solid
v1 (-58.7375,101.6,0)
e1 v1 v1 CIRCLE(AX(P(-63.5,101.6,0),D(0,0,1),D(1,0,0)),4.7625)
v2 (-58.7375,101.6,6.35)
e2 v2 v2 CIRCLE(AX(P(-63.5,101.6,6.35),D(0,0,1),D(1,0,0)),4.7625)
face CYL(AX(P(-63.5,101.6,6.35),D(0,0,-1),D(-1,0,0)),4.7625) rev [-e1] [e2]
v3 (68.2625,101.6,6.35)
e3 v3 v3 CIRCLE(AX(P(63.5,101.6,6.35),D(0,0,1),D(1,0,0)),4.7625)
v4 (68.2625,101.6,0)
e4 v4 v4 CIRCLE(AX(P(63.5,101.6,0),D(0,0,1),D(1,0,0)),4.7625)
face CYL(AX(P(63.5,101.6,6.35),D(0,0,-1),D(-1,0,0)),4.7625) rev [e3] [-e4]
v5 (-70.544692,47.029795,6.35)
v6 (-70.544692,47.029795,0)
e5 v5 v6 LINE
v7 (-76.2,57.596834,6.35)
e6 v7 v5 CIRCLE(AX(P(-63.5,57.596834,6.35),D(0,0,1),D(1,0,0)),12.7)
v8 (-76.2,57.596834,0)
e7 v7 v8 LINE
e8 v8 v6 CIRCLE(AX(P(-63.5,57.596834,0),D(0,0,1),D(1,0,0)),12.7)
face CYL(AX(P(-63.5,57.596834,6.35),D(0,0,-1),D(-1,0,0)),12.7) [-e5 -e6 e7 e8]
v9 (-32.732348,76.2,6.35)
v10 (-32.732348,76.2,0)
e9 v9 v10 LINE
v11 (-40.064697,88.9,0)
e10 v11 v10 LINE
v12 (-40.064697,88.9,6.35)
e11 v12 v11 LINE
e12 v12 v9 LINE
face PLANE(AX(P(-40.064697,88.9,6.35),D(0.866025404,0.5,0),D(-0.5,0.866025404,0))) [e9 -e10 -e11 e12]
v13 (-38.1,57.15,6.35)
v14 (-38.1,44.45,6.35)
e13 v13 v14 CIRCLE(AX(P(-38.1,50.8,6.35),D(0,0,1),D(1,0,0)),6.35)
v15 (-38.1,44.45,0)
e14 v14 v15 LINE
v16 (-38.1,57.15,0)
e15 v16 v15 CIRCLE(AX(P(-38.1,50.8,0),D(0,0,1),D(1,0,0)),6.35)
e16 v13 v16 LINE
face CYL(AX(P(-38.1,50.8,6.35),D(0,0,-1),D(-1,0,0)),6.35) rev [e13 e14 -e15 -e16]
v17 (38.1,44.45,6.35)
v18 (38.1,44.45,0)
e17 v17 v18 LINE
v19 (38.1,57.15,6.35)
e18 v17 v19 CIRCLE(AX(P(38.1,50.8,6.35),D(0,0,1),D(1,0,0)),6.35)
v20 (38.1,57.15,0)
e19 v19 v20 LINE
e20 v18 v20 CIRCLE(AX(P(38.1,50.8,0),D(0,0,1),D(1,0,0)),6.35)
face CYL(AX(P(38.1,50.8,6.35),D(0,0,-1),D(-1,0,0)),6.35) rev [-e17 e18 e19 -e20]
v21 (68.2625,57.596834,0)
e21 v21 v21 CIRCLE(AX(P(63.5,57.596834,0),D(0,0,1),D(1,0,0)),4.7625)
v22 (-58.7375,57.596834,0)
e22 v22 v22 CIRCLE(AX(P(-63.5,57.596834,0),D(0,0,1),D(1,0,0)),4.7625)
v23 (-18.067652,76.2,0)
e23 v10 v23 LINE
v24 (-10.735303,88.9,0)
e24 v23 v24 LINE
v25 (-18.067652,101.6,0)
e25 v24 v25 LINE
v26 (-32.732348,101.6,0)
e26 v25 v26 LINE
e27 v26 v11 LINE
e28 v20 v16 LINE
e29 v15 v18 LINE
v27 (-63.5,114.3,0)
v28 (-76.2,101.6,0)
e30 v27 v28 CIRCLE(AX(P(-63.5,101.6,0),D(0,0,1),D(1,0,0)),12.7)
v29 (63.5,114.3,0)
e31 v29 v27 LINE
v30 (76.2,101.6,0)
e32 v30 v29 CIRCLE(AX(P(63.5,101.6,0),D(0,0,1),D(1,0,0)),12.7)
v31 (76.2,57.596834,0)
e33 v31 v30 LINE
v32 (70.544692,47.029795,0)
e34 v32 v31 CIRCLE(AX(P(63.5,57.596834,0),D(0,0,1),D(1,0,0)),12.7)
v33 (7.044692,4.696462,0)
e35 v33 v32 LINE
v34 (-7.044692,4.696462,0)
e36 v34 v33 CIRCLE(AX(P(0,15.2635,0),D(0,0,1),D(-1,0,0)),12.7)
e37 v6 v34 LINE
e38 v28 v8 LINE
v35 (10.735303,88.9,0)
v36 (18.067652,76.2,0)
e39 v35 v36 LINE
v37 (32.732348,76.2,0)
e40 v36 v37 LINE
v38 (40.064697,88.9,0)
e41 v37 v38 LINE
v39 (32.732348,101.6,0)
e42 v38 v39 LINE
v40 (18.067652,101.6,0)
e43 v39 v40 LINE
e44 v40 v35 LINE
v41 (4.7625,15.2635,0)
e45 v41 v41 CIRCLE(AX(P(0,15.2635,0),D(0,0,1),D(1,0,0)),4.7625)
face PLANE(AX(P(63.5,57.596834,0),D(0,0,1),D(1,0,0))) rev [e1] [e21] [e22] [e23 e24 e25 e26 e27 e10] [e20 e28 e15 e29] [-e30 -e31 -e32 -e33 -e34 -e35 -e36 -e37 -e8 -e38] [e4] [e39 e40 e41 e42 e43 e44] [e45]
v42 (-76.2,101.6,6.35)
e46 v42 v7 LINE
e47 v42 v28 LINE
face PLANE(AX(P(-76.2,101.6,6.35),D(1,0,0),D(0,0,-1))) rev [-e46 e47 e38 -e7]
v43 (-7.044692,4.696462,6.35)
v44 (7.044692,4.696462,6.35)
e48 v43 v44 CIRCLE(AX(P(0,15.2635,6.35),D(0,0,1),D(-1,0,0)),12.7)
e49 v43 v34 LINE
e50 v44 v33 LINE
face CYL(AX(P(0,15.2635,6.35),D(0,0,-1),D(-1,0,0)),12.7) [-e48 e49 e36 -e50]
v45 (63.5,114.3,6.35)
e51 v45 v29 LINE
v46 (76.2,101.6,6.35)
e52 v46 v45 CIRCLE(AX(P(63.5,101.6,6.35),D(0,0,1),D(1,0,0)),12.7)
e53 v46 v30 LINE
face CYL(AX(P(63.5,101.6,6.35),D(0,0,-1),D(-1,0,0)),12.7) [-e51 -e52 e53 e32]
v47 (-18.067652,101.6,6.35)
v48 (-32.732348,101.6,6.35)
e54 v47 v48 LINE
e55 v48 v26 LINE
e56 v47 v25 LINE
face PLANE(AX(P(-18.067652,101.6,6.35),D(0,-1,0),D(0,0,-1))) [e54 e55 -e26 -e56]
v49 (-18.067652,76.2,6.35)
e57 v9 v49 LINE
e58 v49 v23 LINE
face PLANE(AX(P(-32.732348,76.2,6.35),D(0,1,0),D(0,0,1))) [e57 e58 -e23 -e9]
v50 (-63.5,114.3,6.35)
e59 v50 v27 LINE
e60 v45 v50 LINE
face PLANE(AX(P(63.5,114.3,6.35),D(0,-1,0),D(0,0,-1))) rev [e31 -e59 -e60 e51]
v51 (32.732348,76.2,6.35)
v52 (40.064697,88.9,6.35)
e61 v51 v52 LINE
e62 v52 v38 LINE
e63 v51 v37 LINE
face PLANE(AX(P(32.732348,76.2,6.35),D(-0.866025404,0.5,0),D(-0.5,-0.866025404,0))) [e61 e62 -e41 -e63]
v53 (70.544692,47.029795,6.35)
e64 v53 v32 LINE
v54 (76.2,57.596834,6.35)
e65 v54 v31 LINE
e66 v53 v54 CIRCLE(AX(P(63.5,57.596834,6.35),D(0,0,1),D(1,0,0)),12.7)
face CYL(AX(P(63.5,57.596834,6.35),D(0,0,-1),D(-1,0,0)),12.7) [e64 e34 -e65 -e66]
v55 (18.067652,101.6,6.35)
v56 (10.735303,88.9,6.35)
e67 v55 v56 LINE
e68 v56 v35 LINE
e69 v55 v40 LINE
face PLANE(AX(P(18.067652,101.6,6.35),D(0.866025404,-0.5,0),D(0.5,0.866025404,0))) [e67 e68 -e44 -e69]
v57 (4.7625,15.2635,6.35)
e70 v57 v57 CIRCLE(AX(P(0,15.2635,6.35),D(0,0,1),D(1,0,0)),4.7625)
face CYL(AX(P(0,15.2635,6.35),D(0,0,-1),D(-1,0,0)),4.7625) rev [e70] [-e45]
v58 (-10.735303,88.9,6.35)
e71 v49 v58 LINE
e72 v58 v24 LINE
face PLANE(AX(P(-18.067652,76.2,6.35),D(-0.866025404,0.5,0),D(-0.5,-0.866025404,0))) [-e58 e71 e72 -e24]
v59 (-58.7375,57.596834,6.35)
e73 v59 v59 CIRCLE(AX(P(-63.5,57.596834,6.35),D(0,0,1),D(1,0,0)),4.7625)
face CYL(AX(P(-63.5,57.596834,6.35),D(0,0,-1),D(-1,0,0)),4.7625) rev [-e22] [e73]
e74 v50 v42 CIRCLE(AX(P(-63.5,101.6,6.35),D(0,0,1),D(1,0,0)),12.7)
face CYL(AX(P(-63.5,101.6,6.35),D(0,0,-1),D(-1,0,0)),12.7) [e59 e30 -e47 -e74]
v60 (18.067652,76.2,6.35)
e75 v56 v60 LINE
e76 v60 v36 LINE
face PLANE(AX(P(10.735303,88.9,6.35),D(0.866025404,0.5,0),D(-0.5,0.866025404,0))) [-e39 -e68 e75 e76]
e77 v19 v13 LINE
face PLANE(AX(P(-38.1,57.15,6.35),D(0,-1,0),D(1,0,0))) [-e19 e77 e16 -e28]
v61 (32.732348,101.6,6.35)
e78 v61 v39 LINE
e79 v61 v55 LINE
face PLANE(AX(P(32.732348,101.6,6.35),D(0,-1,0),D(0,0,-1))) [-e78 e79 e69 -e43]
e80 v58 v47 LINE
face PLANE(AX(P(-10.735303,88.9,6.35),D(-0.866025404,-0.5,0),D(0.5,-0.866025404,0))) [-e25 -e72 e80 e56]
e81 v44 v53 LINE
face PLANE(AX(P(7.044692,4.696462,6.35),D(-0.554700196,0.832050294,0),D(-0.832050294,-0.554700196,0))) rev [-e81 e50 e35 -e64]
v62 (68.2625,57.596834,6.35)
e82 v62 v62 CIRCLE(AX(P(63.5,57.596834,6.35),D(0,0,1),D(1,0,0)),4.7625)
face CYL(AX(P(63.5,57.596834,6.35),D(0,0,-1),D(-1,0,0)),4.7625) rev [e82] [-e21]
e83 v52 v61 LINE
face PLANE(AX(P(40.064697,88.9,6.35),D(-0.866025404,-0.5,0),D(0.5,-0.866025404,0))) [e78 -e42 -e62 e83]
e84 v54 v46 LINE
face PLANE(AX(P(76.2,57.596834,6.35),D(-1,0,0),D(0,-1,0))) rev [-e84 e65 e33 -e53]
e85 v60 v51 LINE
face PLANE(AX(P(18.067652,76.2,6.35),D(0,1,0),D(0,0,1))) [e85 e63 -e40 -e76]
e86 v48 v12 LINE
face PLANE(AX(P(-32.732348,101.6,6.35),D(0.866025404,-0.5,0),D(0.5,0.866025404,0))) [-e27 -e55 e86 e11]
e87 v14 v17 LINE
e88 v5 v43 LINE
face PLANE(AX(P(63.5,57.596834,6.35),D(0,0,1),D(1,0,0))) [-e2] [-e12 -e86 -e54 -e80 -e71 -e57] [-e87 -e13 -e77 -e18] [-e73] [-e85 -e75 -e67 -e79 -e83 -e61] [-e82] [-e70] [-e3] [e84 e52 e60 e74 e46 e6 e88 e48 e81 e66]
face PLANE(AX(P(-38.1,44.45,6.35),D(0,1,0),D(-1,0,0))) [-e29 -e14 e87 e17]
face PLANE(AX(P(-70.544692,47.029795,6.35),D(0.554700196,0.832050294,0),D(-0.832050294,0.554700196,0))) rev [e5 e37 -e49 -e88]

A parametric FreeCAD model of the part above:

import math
import FreeCAD as App
import Part
import Sketcher
from FreeCAD import Vector
Q = App.Units.Quantity


def add_polygon(sketch, points):
    """Adds a closed chain of lines whose ends are joined by coincident constraints."""
    first, n = sketch.GeometryCount, len(points)
    for a, b in zip(points, points[1:] + points[:1]):
        sketch.addGeometry(Part.LineSegment(App.Vector(*a, 0), App.Vector(*b, 0)), False)
    for i in range(n):
        sketch.addConstraint(Sketcher.Constraint("Coincident", first + i, 2, first + (i + 1) % n, 1))

doc = App.newDocument("Part")
params = doc.addObject("Spreadsheet::Sheet", "Params")
for row, (alias, value) in enumerate([
    ("sketch1_radius", "0.5 in"),
    ("sketch1_width", "5 in"),
    ("sketch1_width2", "3 in"),
    ("sketch1_radius2", "0.25 in"),
    ("sketch1_diameter", "0.375 in"),
    ("pad1_length", "0.25 in"),
], start=1):
    params.set(f"A{row}", alias)
    params.set(f"B{row}", "=" + value)
    params.setAlias(f"B{row}", alias)

body = doc.addObject("PartDesign::Body", "Body")

# Sketch on XY plane
sketch1 = body.newObject("Sketcher::SketchObject", "Sketch")
sketch1.AttachmentSupport = (doc.getObject("XY_Plane"), [""])
sketch1.MapMode = "FlatFace"
sketch1.addGeometry(Part.LineSegment(Vector(7.044692, 4.696462, 0), Vector(70.544692, 47.029795, 0)), False)  # 0
sketch1.addGeometry(Part.ArcOfCircle(Part.Circle(Vector(63.5, 57.596834, 0), Vector(0, 0, 1), 12.7), math.radians(-56.309932), math.radians(0)), False)  # 1
sketch1.addGeometry(Part.LineSegment(Vector(76.2, 57.596834, 0), Vector(76.2, 101.6, 0)), False)  # 2
sketch1.addGeometry(Part.ArcOfCircle(Part.Circle(Vector(63.5, 101.6, 0), Vector(0, 0, 1), 12.7), math.radians(0), math.radians(90)), False)  # 3
sketch1.addGeometry(Part.LineSegment(Vector(63.5, 114.3, 0), Vector(-63.5, 114.3, 0)), False)  # 4
sketch1.addGeometry(Part.ArcOfCircle(Part.Circle(Vector(-63.5, 101.6, 0), Vector(0, 0, 1), 12.7), math.radians(90), math.radians(180)), False)  # 5
sketch1.addGeometry(Part.LineSegment(Vector(-76.2, 101.6, 0), Vector(-76.2, 57.596834, 0)), False)  # 6
sketch1.addGeometry(Part.ArcOfCircle(Part.Circle(Vector(-63.5, 57.596834, 0), Vector(0, 0, 1), 12.7), math.radians(-180), math.radians(-123.690068)), False)  # 7
sketch1.addGeometry(Part.LineSegment(Vector(-70.544692, 47.029795, 0), Vector(-7.044692, 4.696462, 0)), False)  # 8
sketch1.addGeometry(Part.ArcOfCircle(Part.Circle(Vector(0, 15.2635, 0), Vector(0, 0, 1), 12.7), math.radians(-123.690068), math.radians(-56.309932)), False)  # 9
sketch1.addGeometry(Part.Circle(Vector(-63.5, 57.596834, 0), Vector(0, 0, 1), 4.7625), False)  # 10
sketch1.addGeometry(Part.Circle(Vector(0, 15.2635, 0), Vector(0, 0, 1), 4.7625), False)  # 11
sketch1.addGeometry(Part.ArcOfCircle(Part.Circle(Vector(-38.1, 50.8, 0), Vector(0, 0, 1), 6.35), math.radians(90), math.radians(270)), False)  # 12
sketch1.addGeometry(Part.LineSegment(Vector(-38.1, 57.15, 0), Vector(38.1, 57.15, 0)), False)  # 13
sketch1.addGeometry(Part.ArcOfCircle(Part.Circle(Vector(38.1, 50.8, 0), Vector(0, 0, 1), 6.35), math.radians(-90), math.radians(90)), False)  # 14
sketch1.addGeometry(Part.LineSegment(Vector(38.1, 44.45, 0), Vector(-38.1, 44.45, 0)), False)  # 15
sketch1.addGeometry(Part.Circle(Vector(63.5, 57.596834, 0), Vector(0, 0, 1), 4.7625), False)  # 16
sketch1.addGeometry(Part.Circle(Vector(-63.5, 101.6, 0), Vector(0, 0, 1), 4.7625), False)  # 17
add_polygon(sketch1, [(-18.067652, 101.6), (-10.735303, 88.9), (-18.067652, 76.2), (-32.732348, 76.2), (-40.064697, 88.9), (-32.732348, 101.6)])  # lines 18-23
add_polygon(sketch1, [(32.732348, 101.6), (40.064697, 88.9), (32.732348, 76.2), (18.067652, 76.2), (10.735303, 88.9), (18.067652, 101.6)])  # lines 24-29
sketch1.addGeometry(Part.Circle(Vector(63.5, 101.6, 0), Vector(0, 0, 1), 4.7625), False)  # 30
sketch1.addConstraint(Sketcher.Constraint("Tangent", 0, 2, 1, 1))
sketch1.addConstraint(Sketcher.Constraint("Tangent", 1, 2, 2, 1))
sketch1.addConstraint(Sketcher.Constraint("Tangent", 2, 2, 3, 1))
sketch1.addConstraint(Sketcher.Constraint("Tangent", 3, 2, 4, 1))
sketch1.addConstraint(Sketcher.Constraint("Tangent", 4, 2, 5, 1))
sketch1.addConstraint(Sketcher.Constraint("Tangent", 5, 2, 6, 1))
sketch1.addConstraint(Sketcher.Constraint("Tangent", 6, 2, 7, 1))
sketch1.addConstraint(Sketcher.Constraint("Tangent", 7, 2, 8, 1))
sketch1.addConstraint(Sketcher.Constraint("Tangent", 8, 2, 9, 1))
sketch1.addConstraint(Sketcher.Constraint("Tangent", 9, 2, 0, 1))
sketch1.addConstraint(Sketcher.Constraint("Tangent", 12, 1, 13, 1))
sketch1.addConstraint(Sketcher.Constraint("Tangent", 13, 2, 14, 2))
sketch1.addConstraint(Sketcher.Constraint("Tangent", 14, 1, 15, 1))
sketch1.addConstraint(Sketcher.Constraint("Tangent", 15, 2, 12, 2))
sketch1.addConstraint(Sketcher.Constraint("Vertical", 2))
sketch1.addConstraint(Sketcher.Constraint("Horizontal", 4))
sketch1.addConstraint(Sketcher.Constraint("Vertical", 6))
sketch1.addConstraint(Sketcher.Constraint("Horizontal", 13))
sketch1.addConstraint(Sketcher.Constraint("Horizontal", 15))
sketch1.addConstraint(Sketcher.Constraint("Horizontal", 20))
sketch1.addConstraint(Sketcher.Constraint("Horizontal", 23))
sketch1.addConstraint(Sketcher.Constraint("Horizontal", 26))
sketch1.addConstraint(Sketcher.Constraint("Horizontal", 29))
sketch1.addConstraint(Sketcher.Constraint("Coincident", 10, 3, 7, 3))
sketch1.addConstraint(Sketcher.Constraint("Coincident", 11, 3, 9, 3))
sketch1.addConstraint(Sketcher.Constraint("Coincident", 16, 3, 1, 3))
sketch1.addConstraint(Sketcher.Constraint("Coincident", 17, 3, 5, 3))
sketch1.addConstraint(Sketcher.Constraint("Coincident", 30, 3, 3, 3))
sketch1.addConstraint(Sketcher.Constraint("Equal", 1, 3))
sketch1.addConstraint(Sketcher.Constraint("Equal", 3, 5))
sketch1.addConstraint(Sketcher.Constraint("Equal", 5, 7))
sketch1.addConstraint(Sketcher.Constraint("Equal", 7, 9))
sketch1.addConstraint(Sketcher.Constraint("Equal", 10, 11))
sketch1.addConstraint(Sketcher.Constraint("Equal", 11, 16))
sketch1.addConstraint(Sketcher.Constraint("Equal", 16, 17))
sketch1.addConstraint(Sketcher.Constraint("Equal", 17, 30))
sketch1.addConstraint(Sketcher.Constraint("Symmetric", 1, 3, 7, 3, -2))
sketch1.addConstraint(Sketcher.Constraint("Symmetric", 21, 2, 24, 2, -2))
sketch1.addConstraint(Sketcher.Constraint("Symmetric", 20, 2, 25, 2, -2))
sketch1.addConstraint(Sketcher.Constraint("Symmetric", 18, 2, 27, 2, -2))
sketch1.addConstraint(Sketcher.Constraint("Symmetric", 23, 2, 28, 2, -2))
sketch1.addConstraint(Sketcher.Constraint("PointOnObject", 9, 3, -2))
sketch1.addConstraint(Sketcher.Constraint("Parallel", 18, 21))
sketch1.addConstraint(Sketcher.Constraint("Parallel", 19, 22))
sketch1.addConstraint(Sketcher.Constraint("Parallel", 21, 24))
sketch1.addConstraint(Sketcher.Constraint("Parallel", 22, 25))
sketch1.addConstraint(Sketcher.Constraint("Parallel", 24, 27))
sketch1.addConstraint(Sketcher.Constraint("Horizontal", 18, 2, 21, 2))
sketch1.addConstraint(Sketcher.Constraint("Horizontal", 5, 2, 22, 2))
sketch1.addConstraint(Sketcher.Constraint("Vertical", 20, 2, 22, 2))
sketch1.addConstraint(Sketcher.Constraint("Radius", 1, Q("0.5 in")))
sketch1.addConstraint(Sketcher.Constraint("DistanceX", 4, 2, 4, 1, Q("5 in")))
sketch1.addConstraint(Sketcher.Constraint("DistanceX", 13, 1, 13, 2, Q("3 in")))
sketch1.addConstraint(Sketcher.Constraint("Radius", 12, Q("0.25 in")))
sketch1.addConstraint(Sketcher.Constraint("Diameter", 10, Q("0.375 in")))
sketch1.addConstraint(Sketcher.Constraint("DistanceY", -1, 1, 3, 3, Q("4 in")))
sketch1.addConstraint(Sketcher.Constraint("DistanceY", -1, 1, 12, 3, Q("2 in")))
sketch1.addConstraint(Sketcher.Constraint("DistanceY", -1, 1, 19, 2, Q("3 in")))
sketch1.addConstraint(Sketcher.Constraint("Angle", 18, Q("-60 deg")))
sketch1.addConstraint(Sketcher.Constraint("DistanceX", 7, 3, 12, 3, Q("1 in")))
sketch1.addConstraint(Sketcher.Constraint("DistanceY", -1, 1, 8, 2, Q("0.1849001 in")))
sketch1.addConstraint(Sketcher.Constraint("DistanceX", 8, 2, 9, 2, Q("0.5547002 in")))
sketch1.addConstraint(Sketcher.Constraint("DistanceX", 20, 2, 20, 1, Q("14.664697 mm")))
sketch1.addConstraint(Sketcher.Constraint("DistanceX", 19, 2, -1, 1, Q("18.067652 mm")))
sketch1.setExpression("Constraints[62]", "Params.sketch1_radius")
sketch1.setExpression("Constraints[63]", "Params.sketch1_width")
sketch1.setExpression("Constraints[64]", "Params.sketch1_width2")
sketch1.setExpression("Constraints[65]", "Params.sketch1_radius2")
sketch1.setExpression("Constraints[66]", "Params.sketch1_diameter")
pad1 = body.newObject("PartDesign::Pad", "Pad")
pad1.Profile = sketch1
pad1.setExpression("Length", "Params.pad1_length")

doc.recompute()
